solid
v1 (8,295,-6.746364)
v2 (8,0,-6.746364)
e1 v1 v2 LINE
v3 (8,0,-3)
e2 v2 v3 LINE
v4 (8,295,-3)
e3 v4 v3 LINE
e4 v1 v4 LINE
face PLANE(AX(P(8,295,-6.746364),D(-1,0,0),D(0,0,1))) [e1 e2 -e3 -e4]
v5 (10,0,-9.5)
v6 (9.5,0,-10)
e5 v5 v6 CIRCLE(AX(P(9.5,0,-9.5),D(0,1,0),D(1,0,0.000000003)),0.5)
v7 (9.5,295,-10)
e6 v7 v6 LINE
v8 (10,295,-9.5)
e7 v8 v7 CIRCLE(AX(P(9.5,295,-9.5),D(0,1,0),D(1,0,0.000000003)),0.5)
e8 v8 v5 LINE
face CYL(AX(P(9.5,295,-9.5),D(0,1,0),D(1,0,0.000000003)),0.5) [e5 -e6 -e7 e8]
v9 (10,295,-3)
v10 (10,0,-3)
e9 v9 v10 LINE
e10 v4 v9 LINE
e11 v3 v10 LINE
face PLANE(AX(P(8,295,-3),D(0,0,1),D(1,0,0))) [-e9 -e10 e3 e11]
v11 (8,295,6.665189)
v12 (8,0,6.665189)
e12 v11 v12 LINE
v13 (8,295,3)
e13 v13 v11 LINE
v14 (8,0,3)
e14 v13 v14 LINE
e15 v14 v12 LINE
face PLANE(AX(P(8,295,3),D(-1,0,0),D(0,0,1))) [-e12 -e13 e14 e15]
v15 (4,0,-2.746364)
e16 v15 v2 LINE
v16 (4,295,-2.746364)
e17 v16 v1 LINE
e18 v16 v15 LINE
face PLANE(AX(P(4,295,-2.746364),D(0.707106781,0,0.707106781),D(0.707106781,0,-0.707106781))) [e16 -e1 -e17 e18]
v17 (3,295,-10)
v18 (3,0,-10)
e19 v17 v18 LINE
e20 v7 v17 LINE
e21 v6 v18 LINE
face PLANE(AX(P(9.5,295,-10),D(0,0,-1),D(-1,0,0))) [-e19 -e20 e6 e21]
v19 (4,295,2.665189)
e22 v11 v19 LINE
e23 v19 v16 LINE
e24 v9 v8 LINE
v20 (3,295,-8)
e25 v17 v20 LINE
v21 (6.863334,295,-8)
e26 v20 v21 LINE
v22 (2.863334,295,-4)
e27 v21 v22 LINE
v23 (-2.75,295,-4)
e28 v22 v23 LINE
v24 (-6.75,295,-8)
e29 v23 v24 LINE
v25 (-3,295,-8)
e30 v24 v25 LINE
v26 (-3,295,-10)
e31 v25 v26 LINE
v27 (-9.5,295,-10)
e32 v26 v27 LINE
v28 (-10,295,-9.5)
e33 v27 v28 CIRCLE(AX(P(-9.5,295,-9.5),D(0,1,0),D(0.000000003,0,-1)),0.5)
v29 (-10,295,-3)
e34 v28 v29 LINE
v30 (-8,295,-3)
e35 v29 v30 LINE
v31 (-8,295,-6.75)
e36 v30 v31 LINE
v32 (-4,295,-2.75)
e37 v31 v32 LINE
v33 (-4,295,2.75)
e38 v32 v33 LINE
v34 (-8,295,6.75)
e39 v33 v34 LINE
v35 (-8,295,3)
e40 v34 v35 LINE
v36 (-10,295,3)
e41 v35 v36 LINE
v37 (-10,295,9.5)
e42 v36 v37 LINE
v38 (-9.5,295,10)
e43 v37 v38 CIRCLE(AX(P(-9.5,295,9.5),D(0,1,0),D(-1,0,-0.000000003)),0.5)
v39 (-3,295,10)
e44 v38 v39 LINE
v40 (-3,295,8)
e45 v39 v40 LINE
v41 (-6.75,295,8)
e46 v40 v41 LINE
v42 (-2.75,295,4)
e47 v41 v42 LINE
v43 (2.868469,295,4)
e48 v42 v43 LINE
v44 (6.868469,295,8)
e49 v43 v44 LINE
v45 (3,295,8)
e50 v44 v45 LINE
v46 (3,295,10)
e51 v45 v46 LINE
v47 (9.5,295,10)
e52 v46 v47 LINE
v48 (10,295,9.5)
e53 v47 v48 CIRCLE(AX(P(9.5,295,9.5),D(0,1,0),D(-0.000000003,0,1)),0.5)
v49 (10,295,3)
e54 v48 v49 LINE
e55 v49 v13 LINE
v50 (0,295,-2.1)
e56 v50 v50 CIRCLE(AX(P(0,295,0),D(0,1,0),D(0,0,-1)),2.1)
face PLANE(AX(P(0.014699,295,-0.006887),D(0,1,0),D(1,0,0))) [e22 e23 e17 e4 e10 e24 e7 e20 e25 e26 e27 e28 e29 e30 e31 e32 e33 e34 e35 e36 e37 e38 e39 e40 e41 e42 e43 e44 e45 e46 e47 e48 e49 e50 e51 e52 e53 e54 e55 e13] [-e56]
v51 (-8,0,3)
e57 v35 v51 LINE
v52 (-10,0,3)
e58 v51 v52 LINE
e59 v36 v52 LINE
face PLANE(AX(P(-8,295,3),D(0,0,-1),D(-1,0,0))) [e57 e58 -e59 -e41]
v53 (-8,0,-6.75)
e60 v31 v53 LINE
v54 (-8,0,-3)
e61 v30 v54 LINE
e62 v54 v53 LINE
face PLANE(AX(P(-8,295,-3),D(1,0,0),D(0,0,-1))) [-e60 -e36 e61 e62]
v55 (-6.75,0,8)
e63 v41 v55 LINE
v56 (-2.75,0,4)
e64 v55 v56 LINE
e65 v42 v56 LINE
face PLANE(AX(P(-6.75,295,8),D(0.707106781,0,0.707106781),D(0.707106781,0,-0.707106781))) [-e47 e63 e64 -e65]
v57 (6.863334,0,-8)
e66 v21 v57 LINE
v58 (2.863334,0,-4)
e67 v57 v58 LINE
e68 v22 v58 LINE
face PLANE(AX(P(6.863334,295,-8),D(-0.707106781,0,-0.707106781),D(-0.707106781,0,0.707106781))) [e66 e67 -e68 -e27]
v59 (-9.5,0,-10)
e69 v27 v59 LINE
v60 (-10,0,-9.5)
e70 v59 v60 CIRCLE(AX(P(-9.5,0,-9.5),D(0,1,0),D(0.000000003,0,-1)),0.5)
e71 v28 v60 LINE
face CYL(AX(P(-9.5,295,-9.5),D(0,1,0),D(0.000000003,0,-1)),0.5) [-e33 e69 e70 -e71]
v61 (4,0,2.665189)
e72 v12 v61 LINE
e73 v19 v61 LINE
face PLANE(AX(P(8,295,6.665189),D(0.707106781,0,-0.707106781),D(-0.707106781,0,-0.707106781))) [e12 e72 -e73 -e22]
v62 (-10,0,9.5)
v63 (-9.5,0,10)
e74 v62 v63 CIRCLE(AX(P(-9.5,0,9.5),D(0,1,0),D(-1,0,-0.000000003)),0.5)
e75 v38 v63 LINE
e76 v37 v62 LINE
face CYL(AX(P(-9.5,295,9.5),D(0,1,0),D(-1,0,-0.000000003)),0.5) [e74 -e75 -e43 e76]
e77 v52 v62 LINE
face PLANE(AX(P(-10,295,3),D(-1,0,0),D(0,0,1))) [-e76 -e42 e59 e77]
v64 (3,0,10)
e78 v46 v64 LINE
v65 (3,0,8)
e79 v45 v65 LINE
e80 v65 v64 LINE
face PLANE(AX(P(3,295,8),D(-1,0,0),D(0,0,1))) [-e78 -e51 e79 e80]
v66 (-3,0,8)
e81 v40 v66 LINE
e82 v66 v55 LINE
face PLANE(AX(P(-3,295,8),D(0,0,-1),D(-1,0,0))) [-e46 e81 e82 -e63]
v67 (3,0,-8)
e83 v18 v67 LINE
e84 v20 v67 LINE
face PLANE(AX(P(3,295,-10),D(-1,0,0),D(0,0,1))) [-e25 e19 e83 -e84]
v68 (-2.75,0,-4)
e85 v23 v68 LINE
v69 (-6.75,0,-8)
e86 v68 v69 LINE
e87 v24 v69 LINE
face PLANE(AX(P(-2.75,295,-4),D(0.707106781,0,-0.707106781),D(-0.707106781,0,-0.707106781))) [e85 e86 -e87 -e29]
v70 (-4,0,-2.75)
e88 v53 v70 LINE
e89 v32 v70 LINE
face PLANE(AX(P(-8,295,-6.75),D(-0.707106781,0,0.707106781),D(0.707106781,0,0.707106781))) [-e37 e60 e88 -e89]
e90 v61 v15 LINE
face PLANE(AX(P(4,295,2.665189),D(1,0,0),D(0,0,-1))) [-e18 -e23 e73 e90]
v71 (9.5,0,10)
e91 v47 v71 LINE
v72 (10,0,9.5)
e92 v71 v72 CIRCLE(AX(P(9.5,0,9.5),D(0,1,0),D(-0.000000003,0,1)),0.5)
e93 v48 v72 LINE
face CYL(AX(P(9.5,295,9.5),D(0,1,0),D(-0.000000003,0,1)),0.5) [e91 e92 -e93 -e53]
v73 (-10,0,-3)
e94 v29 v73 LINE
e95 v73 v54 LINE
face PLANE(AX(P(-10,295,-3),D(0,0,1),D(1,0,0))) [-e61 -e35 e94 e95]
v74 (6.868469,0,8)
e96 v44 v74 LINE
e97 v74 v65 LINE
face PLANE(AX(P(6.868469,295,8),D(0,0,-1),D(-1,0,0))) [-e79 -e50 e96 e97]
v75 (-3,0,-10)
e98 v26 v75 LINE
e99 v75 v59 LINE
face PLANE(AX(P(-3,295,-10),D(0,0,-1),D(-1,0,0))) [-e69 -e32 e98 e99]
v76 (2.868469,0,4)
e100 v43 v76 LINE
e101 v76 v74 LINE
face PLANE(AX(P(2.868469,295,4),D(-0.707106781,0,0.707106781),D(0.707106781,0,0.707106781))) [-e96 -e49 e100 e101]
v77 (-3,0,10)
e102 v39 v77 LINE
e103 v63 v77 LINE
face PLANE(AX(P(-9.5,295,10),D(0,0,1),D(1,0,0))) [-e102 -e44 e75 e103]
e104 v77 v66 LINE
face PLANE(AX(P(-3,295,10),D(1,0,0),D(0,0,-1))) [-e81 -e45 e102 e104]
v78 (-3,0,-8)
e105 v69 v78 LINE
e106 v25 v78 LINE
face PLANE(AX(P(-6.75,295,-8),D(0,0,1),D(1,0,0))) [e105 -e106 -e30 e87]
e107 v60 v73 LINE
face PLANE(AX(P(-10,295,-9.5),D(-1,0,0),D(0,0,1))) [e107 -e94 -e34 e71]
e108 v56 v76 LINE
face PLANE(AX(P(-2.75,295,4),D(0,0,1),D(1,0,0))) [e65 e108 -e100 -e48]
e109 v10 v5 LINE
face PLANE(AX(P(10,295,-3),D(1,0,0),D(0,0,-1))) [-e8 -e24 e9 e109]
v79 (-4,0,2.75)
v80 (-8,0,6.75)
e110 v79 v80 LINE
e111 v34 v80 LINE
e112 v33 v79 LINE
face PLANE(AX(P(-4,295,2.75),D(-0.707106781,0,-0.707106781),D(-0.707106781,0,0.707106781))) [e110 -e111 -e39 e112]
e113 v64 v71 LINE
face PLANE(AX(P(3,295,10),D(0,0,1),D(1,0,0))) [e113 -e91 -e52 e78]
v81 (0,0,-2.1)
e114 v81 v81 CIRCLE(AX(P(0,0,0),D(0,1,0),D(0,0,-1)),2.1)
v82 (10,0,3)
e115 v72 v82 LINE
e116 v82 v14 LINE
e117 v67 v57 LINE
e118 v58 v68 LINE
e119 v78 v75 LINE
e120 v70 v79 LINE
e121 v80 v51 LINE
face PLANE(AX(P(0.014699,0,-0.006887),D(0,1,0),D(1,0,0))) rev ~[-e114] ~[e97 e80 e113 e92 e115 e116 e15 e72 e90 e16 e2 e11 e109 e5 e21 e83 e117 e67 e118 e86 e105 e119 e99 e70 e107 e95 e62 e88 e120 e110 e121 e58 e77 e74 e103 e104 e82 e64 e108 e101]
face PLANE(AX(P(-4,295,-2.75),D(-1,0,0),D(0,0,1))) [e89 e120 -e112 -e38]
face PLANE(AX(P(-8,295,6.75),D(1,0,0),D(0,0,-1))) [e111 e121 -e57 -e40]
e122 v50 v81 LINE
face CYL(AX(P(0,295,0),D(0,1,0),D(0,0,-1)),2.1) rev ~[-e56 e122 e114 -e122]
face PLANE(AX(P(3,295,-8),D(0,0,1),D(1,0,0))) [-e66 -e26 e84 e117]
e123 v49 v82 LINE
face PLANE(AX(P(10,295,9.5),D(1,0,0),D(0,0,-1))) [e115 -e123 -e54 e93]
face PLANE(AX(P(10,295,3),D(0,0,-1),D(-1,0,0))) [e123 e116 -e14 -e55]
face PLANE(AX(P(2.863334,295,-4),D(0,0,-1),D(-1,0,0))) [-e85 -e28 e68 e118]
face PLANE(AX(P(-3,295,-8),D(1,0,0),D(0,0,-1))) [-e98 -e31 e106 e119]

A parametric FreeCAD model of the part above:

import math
import FreeCAD as App
import Part
import Sketcher
from FreeCAD import Vector

doc = App.newDocument("Part")
params = doc.addObject("Spreadsheet::Sheet", "Params")
for row, (alias, value) in enumerate([
    ("sketch1_diameter", "4.2 mm"),
    ("sketch1_radius", "0.5 mm"),
    ("sketch1_width", "2 mm"),
    ("sketch1_width2", "6.5 mm"),
    ("sketch1_height", "5.5 mm"),
    ("pad1_length", "295 mm"),
], start=1):
    params.set(f"A{row}", alias)
    params.set(f"B{row}", "=" + value)
    params.setAlias(f"B{row}", alias)

body = doc.addObject("PartDesign::Body", "Body")

sketch1 = doc.addObject("Sketcher::SketchObject", "Sketch")
body.addObject(sketch1)
sketch1.AttachmentSupport = (doc.XZ_Plane, [""])
sketch1.MapMode = "FlatFace"
sketch1.AttachmentOffset = App.Placement(Vector(0, 0, -295), App.Rotation())
sketch1.addGeometry([
    Part.LineSegment(Vector(4, -2.746364, 0), Vector(8, -6.746364, 0)),
    Part.LineSegment(Vector(8, -6.746364, 0), Vector(8, -3, 0)),
    Part.LineSegment(Vector(8, -3, 0), Vector(10, -3, 0)),
    Part.LineSegment(Vector(10, -3, 0), Vector(10, -9.5, 0)),
    Part.ArcOfCircle(Part.Circle(Vector(9.5, -9.5, 0), Vector(0, 0, 1), 0.5), math.radians(-90), math.radians(0)),
    Part.LineSegment(Vector(9.5, -10, 0), Vector(3, -10, 0)),
    Part.LineSegment(Vector(3, -10, 0), Vector(3, -8, 0)),
    Part.LineSegment(Vector(3, -8, 0), Vector(6.863334, -8, 0)),
    Part.LineSegment(Vector(6.863334, -8, 0), Vector(2.863334, -4, 0)),
    Part.LineSegment(Vector(2.863334, -4, 0), Vector(-2.75, -4, 0)),
    Part.LineSegment(Vector(-2.75, -4, 0), Vector(-6.75, -8, 0)),
    Part.LineSegment(Vector(-6.75, -8, 0), Vector(-3, -8, 0)),
    Part.LineSegment(Vector(-3, -8, 0), Vector(-3, -10, 0)),
    Part.LineSegment(Vector(-3, -10, 0), Vector(-9.5, -10, 0)),
    Part.ArcOfCircle(Part.Circle(Vector(-9.5, -9.5, 0), Vector(0, 0, 1), 0.5), math.radians(180), math.radians(270)),
    Part.LineSegment(Vector(-10, -9.5, 0), Vector(-10, -3, 0)),
    Part.LineSegment(Vector(-10, -3, 0), Vector(-8, -3, 0)),
    Part.LineSegment(Vector(-8, -3, 0), Vector(-8, -6.75, 0)),
    Part.LineSegment(Vector(-8, -6.75, 0), Vector(-4, -2.75, 0)),
    Part.LineSegment(Vector(-4, -2.75, 0), Vector(-4, 2.75, 0)),
    Part.LineSegment(Vector(-4, 2.75, 0), Vector(-8, 6.75, 0)),
    Part.LineSegment(Vector(-8, 6.75, 0), Vector(-8, 3, 0)),
    Part.LineSegment(Vector(-8, 3, 0), Vector(-10, 3, 0)),
    Part.LineSegment(Vector(-10, 3, 0), Vector(-10, 9.5, 0)),
    Part.ArcOfCircle(Part.Circle(Vector(-9.5, 9.5, 0), Vector(0, 0, 1), 0.5), math.radians(90), math.radians(180)),
    Part.LineSegment(Vector(-9.5, 10, 0), Vector(-3, 10, 0)),
    Part.LineSegment(Vector(-3, 10, 0), Vector(-3, 8, 0)),
    Part.LineSegment(Vector(-3, 8, 0), Vector(-6.75, 8, 0)),
    Part.LineSegment(Vector(-6.75, 8, 0), Vector(-2.75, 4, 0)),
    Part.LineSegment(Vector(-2.75, 4, 0), Vector(2.868469, 4, 0)),
    Part.LineSegment(Vector(2.868469, 4, 0), Vector(6.868469, 8, 0)),
    Part.LineSegment(Vector(6.868469, 8, 0), Vector(3, 8, 0)),
    Part.LineSegment(Vector(3, 8, 0), Vector(3, 10, 0)),
    Part.LineSegment(Vector(3, 10, 0), Vector(9.5, 10, 0)),
    Part.ArcOfCircle(Part.Circle(Vector(9.5, 9.5, 0), Vector(0, 0, 1), 0.5), math.radians(0), math.radians(90)),
    Part.LineSegment(Vector(10, 9.5, 0), Vector(10, 3, 0)),
    Part.LineSegment(Vector(10, 3, 0), Vector(8, 3, 0)),
    Part.LineSegment(Vector(8, 3, 0), Vector(8, 6.665189, 0)),
    Part.LineSegment(Vector(8, 6.665189, 0), Vector(4, 2.665189, 0)),
    Part.LineSegment(Vector(4, 2.665189, 0), Vector(4, -2.746364, 0)),
    Part.Circle(Vector(0, 0, 0), Vector(0, 0, 1), 2.1),
], False)
sketch1.addConstraint([
    Sketcher.Constraint("Coincident", 0, 2, 1, 1),
    Sketcher.Constraint("Coincident", 1, 2, 2, 1),
    Sketcher.Constraint("Coincident", 2, 2, 3, 1),
    Sketcher.Constraint("Tangent", 3, 2, 4, 2),
    Sketcher.Constraint("Tangent", 4, 1, 5, 1),
    Sketcher.Constraint("Coincident", 5, 2, 6, 1),
    Sketcher.Constraint("Coincident", 6, 2, 7, 1),
    Sketcher.Constraint("Coincident", 7, 2, 8, 1),
    Sketcher.Constraint("Coincident", 8, 2, 9, 1),
    Sketcher.Constraint("Coincident", 9, 2, 10, 1),
    Sketcher.Constraint("Coincident", 10, 2, 11, 1),
    Sketcher.Constraint("Coincident", 11, 2, 12, 1),
    Sketcher.Constraint("Coincident", 12, 2, 13, 1),
    Sketcher.Constraint("Tangent", 13, 2, 14, 2),
    Sketcher.Constraint("Tangent", 14, 1, 15, 1),
    Sketcher.Constraint("Coincident", 15, 2, 16, 1),
    Sketcher.Constraint("Coincident", 16, 2, 17, 1),
    Sketcher.Constraint("Coincident", 17, 2, 18, 1),
    Sketcher.Constraint("Coincident", 18, 2, 19, 1),
    Sketcher.Constraint("Coincident", 19, 2, 20, 1),
    Sketcher.Constraint("Coincident", 20, 2, 21, 1),
    Sketcher.Constraint("Coincident", 21, 2, 22, 1),
    Sketcher.Constraint("Coincident", 22, 2, 23, 1),
    Sketcher.Constraint("Tangent", 23, 2, 24, 2),
    Sketcher.Constraint("Tangent", 24, 1, 25, 1),
    Sketcher.Constraint("Coincident", 25, 2, 26, 1),
    Sketcher.Constraint("Coincident", 26, 2, 27, 1),
    Sketcher.Constraint("Coincident", 27, 2, 28, 1),
    Sketcher.Constraint("Coincident", 28, 2, 29, 1),
    Sketcher.Constraint("Coincident", 29, 2, 30, 1),
    Sketcher.Constraint("Coincident", 30, 2, 31, 1),
    Sketcher.Constraint("Coincident", 31, 2, 32, 1),
    Sketcher.Constraint("Coincident", 32, 2, 33, 1),
    Sketcher.Constraint("Tangent", 33, 2, 34, 2),
    Sketcher.Constraint("Tangent", 34, 1, 35, 1),
    Sketcher.Constraint("Coincident", 35, 2, 36, 1),
    Sketcher.Constraint("Coincident", 36, 2, 37, 1),
    Sketcher.Constraint("Coincident", 37, 2, 38, 1),
    Sketcher.Constraint("Coincident", 38, 2, 39, 1),
    Sketcher.Constraint("Coincident", 39, 2, 0, 1),
    Sketcher.Constraint("Vertical", 1),
    Sketcher.Constraint("Horizontal", 2),
    Sketcher.Constraint("Vertical", 3),
    Sketcher.Constraint("Horizontal", 5),
    Sketcher.Constraint("Vertical", 6),
    Sketcher.Constraint("Horizontal", 7),
    Sketcher.Constraint("Horizontal", 9),
    Sketcher.Constraint("Horizontal", 11),
    Sketcher.Constraint("Vertical", 12),
    Sketcher.Constraint("Horizontal", 13),
    Sketcher.Constraint("Vertical", 15),
    Sketcher.Constraint("Horizontal", 16),
    Sketcher.Constraint("Vertical", 17),
    Sketcher.Constraint("Vertical", 19),
    Sketcher.Constraint("Vertical", 21),
    Sketcher.Constraint("Horizontal", 22),
    Sketcher.Constraint("Vertical", 23),
    Sketcher.Constraint("Horizontal", 25),
    Sketcher.Constraint("Vertical", 26),
    Sketcher.Constraint("Horizontal", 27),
    Sketcher.Constraint("Horizontal", 29),
    Sketcher.Constraint("Horizontal", 31),
    Sketcher.Constraint("Vertical", 32),
    Sketcher.Constraint("Horizontal", 33),
    Sketcher.Constraint("Vertical", 35),
    Sketcher.Constraint("Horizontal", 36),
    Sketcher.Constraint("Vertical", 37),
    Sketcher.Constraint("Vertical", 39),
    Sketcher.Constraint("Coincident", 40, 3, -1, 1),
    Sketcher.Constraint("Equal", 4, 14),
    Sketcher.Constraint("Equal", 14, 24),
    Sketcher.Constraint("Equal", 24, 34),
    Sketcher.Constraint("Symmetric", 4, 3, 24, 3, -1, 1),
    Sketcher.Constraint("Symmetric", 14, 3, 34, 3, -1, 1),
    Sketcher.Constraint("Symmetric", 1, 2, 21, 2, -1, 1),
    Sketcher.Constraint("Symmetric", 6, 2, 26, 2, -1, 1),
    Sketcher.Constraint("Symmetric", 11, 2, 31, 2, -1, 1),
    Sketcher.Constraint("Symmetric", 16, 2, 36, 2, -1, 1),
    Sketcher.Constraint("Symmetric", 4, 3, 14, 3, -2),
    Sketcher.Constraint("Symmetric", 6, 2, 11, 2, -2),
    Sketcher.Constraint("Symmetric", 1, 2, 16, 2, -2),
    Sketcher.Constraint("Symmetric", 9, 2, 28, 2, -1),
    Sketcher.Constraint("Parallel", 0, 8),
    Sketcher.Constraint("Perpendicular", 8, 10),
    Sketcher.Constraint("Parallel", 10, 18),
    Sketcher.Constraint("Perpendicular", 18, 20),
    Sketcher.Constraint("Parallel", 20, 28),
    Sketcher.Constraint("Perpendicular", 28, 30),
    Sketcher.Constraint("Parallel", 30, 38),
    Sketcher.Constraint("Vertical", 10, 2, 27, 2),
    Sketcher.Constraint("Equal", 33, 3),
    Sketcher.Constraint("Equal", 36, 6),
    Sketcher.Constraint("Equal", 27, 17),
    Sketcher.Constraint("Equal", 17, 21),
    Sketcher.Constraint("Equal", 0, 8),
    Sketcher.Constraint("Equal", 10, 18),
    Sketcher.Constraint("Diameter", 40, 4.2),
    Sketcher.Constraint("Radius", 4, 0.5),
    Sketcher.Constraint("DistanceX", 2, 1, 2, 2, 2.0),
    Sketcher.Constraint("DistanceX", 5, 2, 5, 1, 6.5),
    Sketcher.Constraint("DistanceY", 19, 1, 19, 2, 5.5),
    Sketcher.Constraint("DistanceX", -1, 1, 0, 2, 8.0),
    Sketcher.Constraint("DistanceY", 1, 2, -1, 1, 3.0),
    Sketcher.Constraint("DistanceY", 8, 2, -1, 1, 4.0),
    Sketcher.Constraint("DistanceX", 29, 1, 29, 2, 5.618469),
    Sketcher.Constraint("DistanceY", 37, 1, 37, 2, 3.665189),
    Sketcher.Constraint("DistanceX", 7, 1, 7, 2, 3.863334),
    Sketcher.Constraint("DistanceY", 1, 1, 1, 2, 3.746364),
])
sketch1.setExpression("Constraints[96]", "Params.sketch1_diameter")
sketch1.setExpression("Constraints[97]", "Params.sketch1_radius")
sketch1.setExpression("Constraints[98]", "Params.sketch1_width")
sketch1.setExpression("Constraints[99]", "Params.sketch1_width2")
sketch1.setExpression("Constraints[100]", "Params.sketch1_height")
pad1 = doc.addObject("PartDesign::Pad", "Pad")
body.addObject(pad1)
pad1.Profile = sketch1
pad1.setExpression("Length", "Params.pad1_length")

doc.recompute()
